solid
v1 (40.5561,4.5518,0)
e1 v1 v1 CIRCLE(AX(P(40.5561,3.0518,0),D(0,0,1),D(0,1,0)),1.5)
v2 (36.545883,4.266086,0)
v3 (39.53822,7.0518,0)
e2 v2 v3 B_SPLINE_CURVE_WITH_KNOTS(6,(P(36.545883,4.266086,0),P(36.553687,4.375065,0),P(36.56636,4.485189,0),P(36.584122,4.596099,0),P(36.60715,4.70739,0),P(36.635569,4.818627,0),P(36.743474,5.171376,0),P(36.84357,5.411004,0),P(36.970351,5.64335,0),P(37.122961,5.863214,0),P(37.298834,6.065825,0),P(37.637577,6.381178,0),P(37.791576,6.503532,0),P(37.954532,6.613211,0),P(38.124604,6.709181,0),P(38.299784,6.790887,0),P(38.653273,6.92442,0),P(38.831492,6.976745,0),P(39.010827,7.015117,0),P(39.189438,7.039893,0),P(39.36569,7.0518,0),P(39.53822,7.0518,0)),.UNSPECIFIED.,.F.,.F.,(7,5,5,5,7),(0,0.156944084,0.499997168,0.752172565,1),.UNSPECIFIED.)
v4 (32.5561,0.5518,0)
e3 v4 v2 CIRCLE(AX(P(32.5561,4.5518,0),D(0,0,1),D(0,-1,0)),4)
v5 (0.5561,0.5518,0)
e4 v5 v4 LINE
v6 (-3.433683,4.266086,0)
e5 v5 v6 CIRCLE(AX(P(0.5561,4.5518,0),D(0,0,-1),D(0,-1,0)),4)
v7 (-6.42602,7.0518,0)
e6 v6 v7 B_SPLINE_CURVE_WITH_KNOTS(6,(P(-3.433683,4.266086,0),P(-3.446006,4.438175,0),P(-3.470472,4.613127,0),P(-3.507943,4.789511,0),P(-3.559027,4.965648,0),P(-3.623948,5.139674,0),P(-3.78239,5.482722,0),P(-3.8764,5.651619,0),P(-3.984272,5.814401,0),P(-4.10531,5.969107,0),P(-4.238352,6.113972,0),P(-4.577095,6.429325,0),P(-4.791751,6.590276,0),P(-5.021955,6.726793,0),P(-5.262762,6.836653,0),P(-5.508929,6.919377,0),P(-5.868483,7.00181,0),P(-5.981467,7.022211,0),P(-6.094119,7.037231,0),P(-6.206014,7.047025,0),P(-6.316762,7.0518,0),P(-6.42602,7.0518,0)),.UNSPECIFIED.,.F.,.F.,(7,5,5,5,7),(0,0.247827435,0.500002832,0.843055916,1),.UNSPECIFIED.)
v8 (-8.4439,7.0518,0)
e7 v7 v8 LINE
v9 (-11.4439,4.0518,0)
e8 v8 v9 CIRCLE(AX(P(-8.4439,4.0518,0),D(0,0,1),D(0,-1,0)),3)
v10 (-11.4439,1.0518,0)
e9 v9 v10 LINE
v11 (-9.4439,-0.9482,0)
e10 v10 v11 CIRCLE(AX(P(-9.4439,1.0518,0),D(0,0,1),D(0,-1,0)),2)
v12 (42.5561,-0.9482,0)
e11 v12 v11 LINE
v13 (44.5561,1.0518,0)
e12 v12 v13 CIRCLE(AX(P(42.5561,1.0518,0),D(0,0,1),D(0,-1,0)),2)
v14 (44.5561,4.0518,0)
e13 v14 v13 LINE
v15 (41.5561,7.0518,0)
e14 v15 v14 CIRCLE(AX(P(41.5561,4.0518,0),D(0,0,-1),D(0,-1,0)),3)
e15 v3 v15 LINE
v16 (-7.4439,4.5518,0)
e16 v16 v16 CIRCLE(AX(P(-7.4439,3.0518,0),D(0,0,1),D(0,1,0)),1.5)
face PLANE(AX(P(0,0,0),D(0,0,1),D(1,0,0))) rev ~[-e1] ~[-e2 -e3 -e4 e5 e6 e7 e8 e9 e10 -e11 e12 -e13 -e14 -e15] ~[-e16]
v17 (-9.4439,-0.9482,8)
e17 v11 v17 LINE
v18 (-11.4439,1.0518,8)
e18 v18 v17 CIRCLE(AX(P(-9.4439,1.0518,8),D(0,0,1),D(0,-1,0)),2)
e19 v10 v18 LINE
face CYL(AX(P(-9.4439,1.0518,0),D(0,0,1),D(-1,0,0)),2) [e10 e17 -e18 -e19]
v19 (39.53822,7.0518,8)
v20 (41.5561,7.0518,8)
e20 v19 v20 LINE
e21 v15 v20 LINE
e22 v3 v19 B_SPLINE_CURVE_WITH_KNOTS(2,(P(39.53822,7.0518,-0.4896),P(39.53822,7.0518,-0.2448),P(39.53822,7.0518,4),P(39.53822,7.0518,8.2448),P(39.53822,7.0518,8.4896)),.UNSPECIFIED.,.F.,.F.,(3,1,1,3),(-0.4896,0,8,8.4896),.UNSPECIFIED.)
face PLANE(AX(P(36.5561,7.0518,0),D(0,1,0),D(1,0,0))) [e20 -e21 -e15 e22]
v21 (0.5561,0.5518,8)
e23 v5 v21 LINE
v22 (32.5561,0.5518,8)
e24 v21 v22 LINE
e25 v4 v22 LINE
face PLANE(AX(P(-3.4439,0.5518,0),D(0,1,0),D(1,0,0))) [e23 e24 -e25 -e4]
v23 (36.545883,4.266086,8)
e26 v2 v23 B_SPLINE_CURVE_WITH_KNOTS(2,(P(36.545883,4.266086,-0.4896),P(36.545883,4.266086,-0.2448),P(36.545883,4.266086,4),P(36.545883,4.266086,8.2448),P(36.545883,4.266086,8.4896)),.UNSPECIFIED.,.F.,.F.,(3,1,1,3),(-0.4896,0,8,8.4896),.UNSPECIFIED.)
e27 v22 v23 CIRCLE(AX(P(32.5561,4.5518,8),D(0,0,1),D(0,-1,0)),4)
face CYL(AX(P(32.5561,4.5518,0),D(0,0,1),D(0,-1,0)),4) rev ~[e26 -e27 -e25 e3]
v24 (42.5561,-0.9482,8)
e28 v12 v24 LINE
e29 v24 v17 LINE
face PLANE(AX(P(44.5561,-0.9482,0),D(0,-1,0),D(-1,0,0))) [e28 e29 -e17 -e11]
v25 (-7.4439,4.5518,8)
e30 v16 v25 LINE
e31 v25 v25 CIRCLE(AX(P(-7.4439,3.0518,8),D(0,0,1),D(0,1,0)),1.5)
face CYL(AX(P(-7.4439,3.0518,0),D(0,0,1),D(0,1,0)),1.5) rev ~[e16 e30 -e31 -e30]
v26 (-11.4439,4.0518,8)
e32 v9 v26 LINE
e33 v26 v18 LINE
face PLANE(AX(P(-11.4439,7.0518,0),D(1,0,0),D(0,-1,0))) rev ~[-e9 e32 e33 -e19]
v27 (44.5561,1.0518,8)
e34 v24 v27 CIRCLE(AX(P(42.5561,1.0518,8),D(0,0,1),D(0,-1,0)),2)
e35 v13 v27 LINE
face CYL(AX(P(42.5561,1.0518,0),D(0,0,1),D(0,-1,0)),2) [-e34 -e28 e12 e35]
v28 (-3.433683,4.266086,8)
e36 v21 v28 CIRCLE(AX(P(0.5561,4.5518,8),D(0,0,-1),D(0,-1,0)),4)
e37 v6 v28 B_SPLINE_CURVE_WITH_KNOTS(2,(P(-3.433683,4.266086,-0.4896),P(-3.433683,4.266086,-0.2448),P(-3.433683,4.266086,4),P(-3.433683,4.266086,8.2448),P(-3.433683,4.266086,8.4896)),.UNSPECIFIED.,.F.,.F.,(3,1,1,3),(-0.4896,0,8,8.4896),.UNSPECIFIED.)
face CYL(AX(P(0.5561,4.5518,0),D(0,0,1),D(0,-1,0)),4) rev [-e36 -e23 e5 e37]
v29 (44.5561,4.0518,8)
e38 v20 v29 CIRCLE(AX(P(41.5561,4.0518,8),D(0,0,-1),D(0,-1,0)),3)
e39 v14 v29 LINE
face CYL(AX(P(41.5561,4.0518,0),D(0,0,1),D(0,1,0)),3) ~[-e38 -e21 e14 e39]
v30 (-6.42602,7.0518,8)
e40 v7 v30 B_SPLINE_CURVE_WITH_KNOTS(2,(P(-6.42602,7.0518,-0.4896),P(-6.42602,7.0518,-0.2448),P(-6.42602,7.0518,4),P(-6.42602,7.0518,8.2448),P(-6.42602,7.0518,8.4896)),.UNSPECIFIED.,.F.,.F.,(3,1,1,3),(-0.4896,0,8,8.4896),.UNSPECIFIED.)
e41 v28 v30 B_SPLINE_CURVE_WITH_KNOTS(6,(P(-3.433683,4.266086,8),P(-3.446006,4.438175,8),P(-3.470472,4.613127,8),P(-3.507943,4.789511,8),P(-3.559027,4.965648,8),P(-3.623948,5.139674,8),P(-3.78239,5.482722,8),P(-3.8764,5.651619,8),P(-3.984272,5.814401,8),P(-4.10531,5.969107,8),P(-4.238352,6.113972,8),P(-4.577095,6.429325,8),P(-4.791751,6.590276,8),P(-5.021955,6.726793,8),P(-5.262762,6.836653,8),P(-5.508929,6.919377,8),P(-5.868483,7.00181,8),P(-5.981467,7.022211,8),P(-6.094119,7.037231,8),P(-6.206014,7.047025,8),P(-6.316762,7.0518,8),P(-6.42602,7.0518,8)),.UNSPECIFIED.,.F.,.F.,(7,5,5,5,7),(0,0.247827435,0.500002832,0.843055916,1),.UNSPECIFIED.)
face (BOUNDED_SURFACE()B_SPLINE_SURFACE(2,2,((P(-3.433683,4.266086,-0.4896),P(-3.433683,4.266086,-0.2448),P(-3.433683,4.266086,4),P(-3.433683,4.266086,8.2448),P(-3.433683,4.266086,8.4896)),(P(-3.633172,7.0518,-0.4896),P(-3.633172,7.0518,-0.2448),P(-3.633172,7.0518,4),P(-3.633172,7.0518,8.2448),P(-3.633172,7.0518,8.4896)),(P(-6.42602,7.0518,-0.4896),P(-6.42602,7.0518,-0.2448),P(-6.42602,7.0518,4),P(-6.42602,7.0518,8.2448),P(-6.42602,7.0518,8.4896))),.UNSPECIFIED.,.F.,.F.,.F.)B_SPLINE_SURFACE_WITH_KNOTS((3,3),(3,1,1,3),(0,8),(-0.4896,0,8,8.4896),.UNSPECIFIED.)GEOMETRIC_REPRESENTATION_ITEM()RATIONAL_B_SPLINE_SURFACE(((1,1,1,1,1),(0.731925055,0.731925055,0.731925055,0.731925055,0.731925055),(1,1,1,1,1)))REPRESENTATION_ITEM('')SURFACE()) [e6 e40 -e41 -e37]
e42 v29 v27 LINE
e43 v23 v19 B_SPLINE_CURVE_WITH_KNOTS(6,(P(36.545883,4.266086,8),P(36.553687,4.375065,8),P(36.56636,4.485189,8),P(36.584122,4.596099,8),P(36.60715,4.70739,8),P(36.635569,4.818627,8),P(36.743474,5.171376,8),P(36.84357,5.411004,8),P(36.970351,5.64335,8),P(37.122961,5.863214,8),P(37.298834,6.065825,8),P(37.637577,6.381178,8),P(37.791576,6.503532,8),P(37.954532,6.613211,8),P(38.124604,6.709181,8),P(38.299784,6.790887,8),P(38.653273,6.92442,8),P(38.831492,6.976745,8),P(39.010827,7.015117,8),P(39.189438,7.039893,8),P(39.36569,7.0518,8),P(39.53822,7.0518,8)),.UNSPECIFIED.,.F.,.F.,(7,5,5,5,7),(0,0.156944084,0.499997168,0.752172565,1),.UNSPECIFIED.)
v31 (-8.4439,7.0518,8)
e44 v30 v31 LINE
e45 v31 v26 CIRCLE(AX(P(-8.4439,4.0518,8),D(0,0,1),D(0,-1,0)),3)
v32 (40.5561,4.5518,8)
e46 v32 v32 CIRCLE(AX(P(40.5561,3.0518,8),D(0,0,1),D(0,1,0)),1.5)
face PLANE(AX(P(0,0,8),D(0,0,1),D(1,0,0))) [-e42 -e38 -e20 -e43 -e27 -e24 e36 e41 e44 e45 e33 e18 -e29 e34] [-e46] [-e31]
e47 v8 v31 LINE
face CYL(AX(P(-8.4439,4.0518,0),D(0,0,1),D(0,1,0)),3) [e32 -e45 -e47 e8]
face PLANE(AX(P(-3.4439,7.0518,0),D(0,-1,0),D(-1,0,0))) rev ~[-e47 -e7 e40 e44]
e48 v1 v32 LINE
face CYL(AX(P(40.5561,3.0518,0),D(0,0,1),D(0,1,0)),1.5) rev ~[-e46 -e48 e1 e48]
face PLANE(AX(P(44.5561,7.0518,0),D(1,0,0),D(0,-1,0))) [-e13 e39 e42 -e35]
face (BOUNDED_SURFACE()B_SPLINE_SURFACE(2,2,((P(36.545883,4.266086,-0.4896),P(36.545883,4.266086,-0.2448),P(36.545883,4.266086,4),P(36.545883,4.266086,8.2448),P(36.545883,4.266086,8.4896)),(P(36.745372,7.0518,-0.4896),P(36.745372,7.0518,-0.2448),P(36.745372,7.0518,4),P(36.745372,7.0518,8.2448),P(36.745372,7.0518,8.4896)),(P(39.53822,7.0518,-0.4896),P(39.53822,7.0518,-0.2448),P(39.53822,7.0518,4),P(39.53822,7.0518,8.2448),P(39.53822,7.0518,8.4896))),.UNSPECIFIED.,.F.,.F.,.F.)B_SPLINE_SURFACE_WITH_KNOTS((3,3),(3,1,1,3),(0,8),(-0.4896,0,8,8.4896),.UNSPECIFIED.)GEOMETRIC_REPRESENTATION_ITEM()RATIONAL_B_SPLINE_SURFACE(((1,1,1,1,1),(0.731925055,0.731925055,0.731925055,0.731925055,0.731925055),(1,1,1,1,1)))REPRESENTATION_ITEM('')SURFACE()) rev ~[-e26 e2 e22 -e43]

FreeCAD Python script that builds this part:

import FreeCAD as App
import Part
import Sketcher
from FreeCAD import Vector
Q = App.Units.Quantity


def edges_at(feature, points):
    """Names of the edges that pass closest to the given points."""
    edges = feature.Shape.Edges
    near = lambda p: min(range(len(edges)), key=lambda i: edges[i].distToShape(Part.Vertex(*p))[0])
    return sorted({f"Edge{near(p) + 1}" for p in points})

doc = App.newDocument("Part")
body = doc.addObject("PartDesign::Body", "Body")

sketch1 = body.newObject("Sketcher::SketchObject", "Sketch")
sketch1.AttachmentSupport = (doc.getObject("XY_Plane"), [""])
sketch1.MapMode = "FlatFace"
sketch1.addGeometry([
    Part.LineSegment(Vector(37, 1, 0), Vector(-3, 1, 0)),
    Part.LineSegment(Vector(-3, 1, 0), Vector(-3, 7, 0)),
    Part.LineSegment(Vector(-3, 7, 0), Vector(-11, 7, 0)),
    Part.LineSegment(Vector(-11, 7, 0), Vector(-11, -1, 0)),
    Part.LineSegment(Vector(-11, -1, 0), Vector(45, -1, 0)),
    Part.LineSegment(Vector(45, -1, 0), Vector(45, 7, 0)),
    Part.LineSegment(Vector(45, 7, 0), Vector(37, 7, 0)),
    Part.LineSegment(Vector(37, 7, 0), Vector(37, 1, 0)),
], False)
sketch1.addConstraint([
    Sketcher.Constraint("Coincident", 0, 2, 1, 1),
    Sketcher.Constraint("Coincident", 1, 2, 2, 1),
    Sketcher.Constraint("Coincident", 2, 2, 3, 1),
    Sketcher.Constraint("Coincident", 3, 2, 4, 1),
    Sketcher.Constraint("Coincident", 4, 2, 5, 1),
    Sketcher.Constraint("Coincident", 5, 2, 6, 1),
    Sketcher.Constraint("Coincident", 6, 2, 7, 1),
    Sketcher.Constraint("Coincident", 7, 2, 0, 1),
    Sketcher.Constraint("Horizontal", 0),
    Sketcher.Constraint("Vertical", 1),
    Sketcher.Constraint("Horizontal", 2),
    Sketcher.Constraint("Vertical", 3),
    Sketcher.Constraint("Horizontal", 4),
    Sketcher.Constraint("Vertical", 5),
    Sketcher.Constraint("Horizontal", 6),
    Sketcher.Constraint("Vertical", 7),
    Sketcher.Constraint("Horizontal", 2, 2, 5, 2),
    Sketcher.Constraint("Equal", 2, 6),
    Sketcher.Constraint("Equal", 6, 3),
    Sketcher.Constraint("DistanceX", 2, 2, 2, 1, Q("8 mm")),
    Sketcher.Constraint("DistanceX", 4, 1, 4, 2, Q("56 mm")),
    Sketcher.Constraint("DistanceY", 3, 2, 0, 2, Q("1.5 mm")),
    Sketcher.Constraint("DistanceX", 0, 2, -1, 1, Q("3.444 mm")),
    Sketcher.Constraint("DistanceY", -1, 1, 0, 2, Q("0.5518 mm")),
])
pad1 = body.newObject("PartDesign::Pad", "Pad")
pad1.Profile = sketch1
pad1.Length = 8

sketch2 = body.newObject("Sketcher::SketchObject", "Sketch001")
sketch2.AttachmentSupport = (doc.getObject("XY_Plane"), [""])
sketch2.MapMode = "FlatFace"
sketch2.addGeometry([
    Part.Circle(Vector(40.6, 3.1, 0), Vector(0, 0, 1), 1.5),
    Part.Circle(Vector(-7.4, 3.1, 0), Vector(0, 0, 1), 1.5),
], False)
sketch2.addConstraint([
    Sketcher.Constraint("Equal", 0, 1),
    Sketcher.Constraint("Horizontal", 0, 3, 1, 3),
    Sketcher.Constraint("Diameter", 0, Q("3 mm")),
    Sketcher.Constraint("DistanceX", 1, 3, 0, 3, Q("48 mm")),
    Sketcher.Constraint("DistanceX", -1, 1, 0, 3, Q("40.556 mm")),
    Sketcher.Constraint("DistanceY", -1, 1, 0, 3, Q("3.0518 mm")),
])
doc.recompute()
hole = body.newObject("PartDesign::Hole", "Hole")
hole.Profile = sketch2
hole.ThreadType = "None"
hole.Diameter = 3
hole.DepthType = "ThroughAll"
hole.Reversed = True
doc.recompute()

fillet = body.newObject("PartDesign::Fillet", "Fillet")
fillet.Base = (hole, edges_at(hole, [(-3.444, 0.552, 4), (36.556, 0.552, 4)]))
fillet.Radius = 4
doc.recompute()

fillet2 = body.newObject("PartDesign::Fillet", "Fillet001")
fillet2.Base = (fillet, edges_at(fillet, [
    (-3.444, 7.052, 4),
    (-11.444, 7.052, 4),
    (44.556, 7.052, 4),
    (36.556, 7.052, 4),
]))
fillet2.Radius = 3
doc.recompute()

fillet3 = body.newObject("PartDesign::Fillet", "Fillet002")
fillet3.Base = (fillet2, edges_at(fillet2, [(44.556, -0.948, 4), (-11.444, -0.948, 4)]))
fillet3.Radius = 2

doc.recompute()
